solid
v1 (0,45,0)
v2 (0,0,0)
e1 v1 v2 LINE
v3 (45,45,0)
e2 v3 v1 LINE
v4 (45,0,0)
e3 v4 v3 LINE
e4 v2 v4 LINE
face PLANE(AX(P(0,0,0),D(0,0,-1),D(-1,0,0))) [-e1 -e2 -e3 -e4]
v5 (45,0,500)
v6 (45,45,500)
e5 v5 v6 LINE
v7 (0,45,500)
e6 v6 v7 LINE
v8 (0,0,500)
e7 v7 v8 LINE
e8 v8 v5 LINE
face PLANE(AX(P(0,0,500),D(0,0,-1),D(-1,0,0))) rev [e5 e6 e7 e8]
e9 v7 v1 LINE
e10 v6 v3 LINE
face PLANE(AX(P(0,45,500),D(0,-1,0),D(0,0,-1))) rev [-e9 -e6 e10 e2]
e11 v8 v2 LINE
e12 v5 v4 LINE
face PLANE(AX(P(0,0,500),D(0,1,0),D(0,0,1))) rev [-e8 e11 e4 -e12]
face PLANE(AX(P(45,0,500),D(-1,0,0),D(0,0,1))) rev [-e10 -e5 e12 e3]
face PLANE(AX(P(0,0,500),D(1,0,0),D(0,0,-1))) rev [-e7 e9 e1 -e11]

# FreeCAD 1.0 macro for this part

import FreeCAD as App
import Part
import Sketcher

V = App.Vector
Q = App.Units.Quantity


def add_polygon(sketch, points):
    """Adds a closed chain of lines whose ends are joined by coincident constraints."""
    first, n = sketch.GeometryCount, len(points)
    for a, b in zip(points, points[1:] + points[:1]):
        sketch.addGeometry(Part.LineSegment(App.Vector(*a, 0), App.Vector(*b, 0)), False)
    for i in range(n):
        sketch.addConstraint(Sketcher.Constraint("Coincident", first + i, 2, first + (i + 1) % n, 1))

doc = App.newDocument("Part")
body = doc.addObject("PartDesign::Body", "Body")

sketch1 = body.newObject("Sketcher::SketchObject", "Sketch")
sketch1.AttachmentSupport = (doc.getObject("XY_Plane"), [""])
sketch1.MapMode = "FlatFace"
add_polygon(sketch1, [(0, 45), (0, 0), (45, 0), (45, 45)])
sketch1.addConstraint(Sketcher.Constraint("Vertical", 0))
sketch1.addConstraint(Sketcher.Constraint("Horizontal", 1))
sketch1.addConstraint(Sketcher.Constraint("Vertical", 2))
sketch1.addConstraint(Sketcher.Constraint("Horizontal", 3))
sketch1.addConstraint(Sketcher.Constraint("Coincident", 0, 2, -1, 1))
sketch1.addConstraint(Sketcher.Constraint("Equal", 3, 0))
sketch1.addConstraint(Sketcher.Constraint("DistanceX", 1, 1, 1, 2, Q("45 mm")))
pad1 = body.newObject("PartDesign::Pad", "Pad")
pad1.Profile = sketch1
pad1.Length = 500

doc.recompute()
